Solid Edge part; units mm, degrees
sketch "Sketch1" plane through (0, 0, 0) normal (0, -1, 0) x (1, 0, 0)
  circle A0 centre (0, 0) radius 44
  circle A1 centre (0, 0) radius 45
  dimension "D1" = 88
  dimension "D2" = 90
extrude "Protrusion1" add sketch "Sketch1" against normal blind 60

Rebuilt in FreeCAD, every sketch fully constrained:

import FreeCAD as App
import Part
import Sketcher
Q = App.Units.Quantity

doc = App.newDocument("Part")
params = doc.addObject("Spreadsheet::Sheet", "Params")
for row, (alias, value) in enumerate([
    ("sketch1_diameter", "90 mm"),
    ("sketch1_diameter2", "88 mm"),
    ("pad1_length", "60 mm"),
], start=1):
    params.set(f"A{row}", alias)
    params.set(f"B{row}", "=" + value)
    params.setAlias(f"B{row}", alias)

body = doc.addObject("PartDesign::Body", "Body")

sketch1 = body.newObject("Sketcher::SketchObject", "Sketch")
sketch1.AttachmentSupport = (doc.getObject("XZ_Plane"), [""])
sketch1.MapMode = "FlatFace"
sketch1.addGeometry([
    Part.Circle(App.Vector(0, 0, 0), App.Vector(0, 0, 1), 45),
    Part.Circle(App.Vector(0, 0, 0), App.Vector(0, 0, 1), 44),
], False)
sketch1.addConstraint([
    Sketcher.Constraint("Coincident", 0, 3, -1, 1),
    Sketcher.Constraint("Coincident", 1, 3, -1, 1),
    Sketcher.Constraint("Diameter", 0, Q("90 mm")),
    Sketcher.Constraint("Diameter", 1, Q("88 mm")),
])
sketch1.setExpression("Constraints[2]", "Params.sketch1_diameter")
sketch1.setExpression("Constraints[3]", "Params.sketch1_diameter2")
pad1 = body.newObject("PartDesign::Pad", "Pad")
pad1.Profile = sketch1
pad1.setExpression("Length", "Params.pad1_length")
pad1.Reversed = True

doc.recompute()
